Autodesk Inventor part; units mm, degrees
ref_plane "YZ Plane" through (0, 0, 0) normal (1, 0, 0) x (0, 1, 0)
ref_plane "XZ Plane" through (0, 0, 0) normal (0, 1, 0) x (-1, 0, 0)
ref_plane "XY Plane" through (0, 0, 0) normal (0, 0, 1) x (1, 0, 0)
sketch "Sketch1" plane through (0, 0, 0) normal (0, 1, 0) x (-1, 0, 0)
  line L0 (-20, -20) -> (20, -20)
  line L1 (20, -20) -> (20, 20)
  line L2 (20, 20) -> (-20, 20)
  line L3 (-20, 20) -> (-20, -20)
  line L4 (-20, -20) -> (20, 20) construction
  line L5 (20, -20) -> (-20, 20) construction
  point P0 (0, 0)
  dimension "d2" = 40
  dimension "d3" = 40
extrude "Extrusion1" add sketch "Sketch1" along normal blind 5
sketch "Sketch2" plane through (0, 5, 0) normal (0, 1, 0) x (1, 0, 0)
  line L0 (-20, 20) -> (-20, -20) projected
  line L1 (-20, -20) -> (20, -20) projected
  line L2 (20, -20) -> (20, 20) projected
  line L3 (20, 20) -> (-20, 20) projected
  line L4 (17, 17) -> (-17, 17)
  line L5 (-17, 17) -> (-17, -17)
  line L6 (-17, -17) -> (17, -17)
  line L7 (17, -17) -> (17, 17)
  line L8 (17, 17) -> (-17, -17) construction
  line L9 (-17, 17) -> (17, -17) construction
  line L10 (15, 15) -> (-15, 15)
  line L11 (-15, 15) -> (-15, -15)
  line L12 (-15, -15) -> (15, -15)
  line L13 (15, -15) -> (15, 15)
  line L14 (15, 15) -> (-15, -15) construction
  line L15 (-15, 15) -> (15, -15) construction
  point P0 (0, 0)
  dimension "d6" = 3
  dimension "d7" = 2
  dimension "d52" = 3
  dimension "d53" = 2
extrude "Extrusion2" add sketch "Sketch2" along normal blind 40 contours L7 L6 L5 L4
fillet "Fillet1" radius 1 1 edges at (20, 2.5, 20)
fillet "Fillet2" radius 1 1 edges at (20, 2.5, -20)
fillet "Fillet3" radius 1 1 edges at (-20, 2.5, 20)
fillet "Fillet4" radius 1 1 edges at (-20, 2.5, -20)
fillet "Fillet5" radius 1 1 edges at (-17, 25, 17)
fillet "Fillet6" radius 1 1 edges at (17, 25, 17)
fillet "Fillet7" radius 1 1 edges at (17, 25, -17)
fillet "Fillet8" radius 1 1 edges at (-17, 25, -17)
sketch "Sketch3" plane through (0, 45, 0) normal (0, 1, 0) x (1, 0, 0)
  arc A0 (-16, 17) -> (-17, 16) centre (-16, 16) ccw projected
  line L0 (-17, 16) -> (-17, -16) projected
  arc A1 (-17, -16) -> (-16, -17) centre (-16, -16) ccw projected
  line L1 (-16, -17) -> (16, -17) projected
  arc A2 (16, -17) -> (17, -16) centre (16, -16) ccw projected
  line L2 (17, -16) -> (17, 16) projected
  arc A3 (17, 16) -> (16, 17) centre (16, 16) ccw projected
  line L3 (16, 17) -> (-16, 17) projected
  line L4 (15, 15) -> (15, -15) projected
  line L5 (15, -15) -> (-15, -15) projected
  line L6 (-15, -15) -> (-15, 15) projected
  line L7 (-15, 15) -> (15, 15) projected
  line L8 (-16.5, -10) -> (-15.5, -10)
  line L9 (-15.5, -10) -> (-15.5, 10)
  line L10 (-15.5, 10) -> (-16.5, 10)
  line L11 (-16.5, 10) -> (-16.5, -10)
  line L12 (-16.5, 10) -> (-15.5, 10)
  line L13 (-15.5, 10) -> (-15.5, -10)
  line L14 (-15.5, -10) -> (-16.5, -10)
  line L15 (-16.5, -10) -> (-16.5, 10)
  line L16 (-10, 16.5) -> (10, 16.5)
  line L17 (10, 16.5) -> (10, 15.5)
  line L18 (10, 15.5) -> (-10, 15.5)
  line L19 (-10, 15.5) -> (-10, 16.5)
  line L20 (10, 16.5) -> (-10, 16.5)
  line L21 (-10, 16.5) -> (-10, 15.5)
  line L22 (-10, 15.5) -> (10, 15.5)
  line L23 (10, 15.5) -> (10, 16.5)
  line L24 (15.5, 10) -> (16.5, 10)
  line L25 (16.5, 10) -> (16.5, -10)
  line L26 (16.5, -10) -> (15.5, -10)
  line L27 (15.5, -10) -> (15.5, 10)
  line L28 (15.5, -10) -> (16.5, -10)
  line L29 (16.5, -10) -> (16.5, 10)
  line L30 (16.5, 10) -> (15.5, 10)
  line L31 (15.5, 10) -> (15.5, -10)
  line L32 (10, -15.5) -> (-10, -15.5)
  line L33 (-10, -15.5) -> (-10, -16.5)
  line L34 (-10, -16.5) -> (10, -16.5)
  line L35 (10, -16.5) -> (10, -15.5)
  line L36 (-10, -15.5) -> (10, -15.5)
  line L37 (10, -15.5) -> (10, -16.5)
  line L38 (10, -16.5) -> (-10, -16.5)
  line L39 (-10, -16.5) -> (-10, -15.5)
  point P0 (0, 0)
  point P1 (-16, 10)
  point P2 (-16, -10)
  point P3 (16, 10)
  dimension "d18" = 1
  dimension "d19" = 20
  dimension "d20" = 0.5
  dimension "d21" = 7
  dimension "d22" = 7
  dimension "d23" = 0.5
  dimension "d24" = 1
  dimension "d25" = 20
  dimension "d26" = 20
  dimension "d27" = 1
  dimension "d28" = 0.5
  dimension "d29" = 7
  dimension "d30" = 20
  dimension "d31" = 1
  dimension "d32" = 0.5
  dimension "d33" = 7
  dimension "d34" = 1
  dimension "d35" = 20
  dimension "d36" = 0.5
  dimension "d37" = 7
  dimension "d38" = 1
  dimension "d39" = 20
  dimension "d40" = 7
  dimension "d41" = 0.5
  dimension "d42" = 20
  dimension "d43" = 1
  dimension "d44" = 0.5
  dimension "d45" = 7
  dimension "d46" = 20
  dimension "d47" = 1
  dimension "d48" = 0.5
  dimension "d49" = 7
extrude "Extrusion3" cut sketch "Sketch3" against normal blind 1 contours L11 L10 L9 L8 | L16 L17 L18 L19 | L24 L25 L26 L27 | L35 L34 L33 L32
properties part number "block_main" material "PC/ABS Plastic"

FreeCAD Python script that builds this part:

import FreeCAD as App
import Part
import Sketcher
from FreeCAD import Vector
Q = App.Units.Quantity


def edges_at(feature, points):
    """Names of the edges that pass closest to the given points."""
    edges = feature.Shape.Edges
    near = lambda p: min(range(len(edges)), key=lambda i: edges[i].distToShape(Part.Vertex(*p))[0])
    return sorted({f"Edge{near(p) + 1}" for p in points})

doc = App.newDocument("Part")
body = doc.addObject("PartDesign::Body", "Body")

sketch1 = doc.addObject("Sketcher::SketchObject", "Sketch")
body.addObject(sketch1)
sketch1.AttachmentSupport = (doc.XZ_Plane, [""])
sketch1.MapMode = "FlatFace"
sketch1.addGeometry([
    Part.LineSegment(Vector(20, 20, 0), Vector(20, -20, 0)),
    Part.LineSegment(Vector(20, -20, 0), Vector(-20, -20, 0)),
    Part.LineSegment(Vector(-20, -20, 0), Vector(-20, 20, 0)),
    Part.LineSegment(Vector(-20, 20, 0), Vector(20, 20, 0)),
], False)
sketch1.addConstraint([
    Sketcher.Constraint("Coincident", 0, 2, 1, 1),
    Sketcher.Constraint("Coincident", 1, 2, 2, 1),
    Sketcher.Constraint("Coincident", 2, 2, 3, 1),
    Sketcher.Constraint("Coincident", 3, 2, 0, 1),
    Sketcher.Constraint("Vertical", 0),
    Sketcher.Constraint("Horizontal", 1),
    Sketcher.Constraint("Vertical", 2),
    Sketcher.Constraint("Horizontal", 3),
    Sketcher.Constraint("Symmetric", 0, 2, 2, 2, -1, 1),
    Sketcher.Constraint("Equal", 3, 0),
    Sketcher.Constraint("DistanceX", 1, 2, 1, 1, Q("40 mm")),
])
pad1 = doc.addObject("PartDesign::Pad", "Pad")
body.addObject(pad1)
pad1.Profile = sketch1
pad1.Length = 5
pad1.Reversed = True

sketch2 = doc.addObject("Sketcher::SketchObject", "Sketch001")
body.addObject(sketch2)
sketch2.AttachmentSupport = (doc.XZ_Plane, [""])
sketch2.MapMode = "FlatFace"
sketch2.AttachmentOffset = App.Placement(Vector(0, 0, -5), App.Rotation())
sketch2.addGeometry([
    Part.LineSegment(Vector(17, 17, 0), Vector(17, -17, 0)),
    Part.LineSegment(Vector(17, -17, 0), Vector(-17, -17, 0)),
    Part.LineSegment(Vector(-17, -17, 0), Vector(-17, 17, 0)),
    Part.LineSegment(Vector(-17, 17, 0), Vector(17, 17, 0)),
    Part.LineSegment(Vector(-15, -15, 0), Vector(15, -15, 0)),
    Part.LineSegment(Vector(15, -15, 0), Vector(15, 15, 0)),
    Part.LineSegment(Vector(15, 15, 0), Vector(-15, 15, 0)),
    Part.LineSegment(Vector(-15, 15, 0), Vector(-15, -15, 0)),
], False)
sketch2.addConstraint([
    Sketcher.Constraint("Coincident", 0, 2, 1, 1),
    Sketcher.Constraint("Coincident", 1, 2, 2, 1),
    Sketcher.Constraint("Coincident", 2, 2, 3, 1),
    Sketcher.Constraint("Coincident", 3, 2, 0, 1),
    Sketcher.Constraint("Coincident", 4, 2, 5, 1),
    Sketcher.Constraint("Coincident", 5, 2, 6, 1),
    Sketcher.Constraint("Coincident", 6, 2, 7, 1),
    Sketcher.Constraint("Coincident", 7, 2, 4, 1),
    Sketcher.Constraint("Vertical", 0),
    Sketcher.Constraint("Horizontal", 1),
    Sketcher.Constraint("Vertical", 2),
    Sketcher.Constraint("Horizontal", 3),
    Sketcher.Constraint("Horizontal", 4),
    Sketcher.Constraint("Vertical", 5),
    Sketcher.Constraint("Horizontal", 6),
    Sketcher.Constraint("Vertical", 7),
    Sketcher.Constraint("Symmetric", 0, 2, 2, 2, -1, 1),
    Sketcher.Constraint("Symmetric", 4, 2, 6, 2, -1, 1),
    Sketcher.Constraint("Equal", 3, 0),
    Sketcher.Constraint("Equal", 6, 5),
    Sketcher.Constraint("DistanceX", 4, 2, 0, 2, Q("2 mm")),
    Sketcher.Constraint("DistanceX", 1, 2, 1, 1, Q("34 mm")),
])
pad2 = doc.addObject("PartDesign::Pad", "Pad001")
body.addObject(pad2)
pad2.Profile = sketch2
pad2.Length = 40
pad2.Reversed = True
doc.recompute()

fillet = doc.addObject("PartDesign::Fillet", "Fillet")
body.addObject(fillet)
fillet.Base = (pad2, edges_at(pad2, [(20, 2.5, 20)]))
fillet.Radius = 1
doc.recompute()

fillet2 = doc.addObject("PartDesign::Fillet", "Fillet001")
body.addObject(fillet2)
fillet2.Base = (fillet, edges_at(fillet, [(20, 2.5, -20)]))
fillet2.Radius = 1
doc.recompute()

fillet3 = doc.addObject("PartDesign::Fillet", "Fillet002")
body.addObject(fillet3)
fillet3.Base = (fillet2, edges_at(fillet2, [(-20, 2.5, 20)]))
fillet3.Radius = 1
doc.recompute()

fillet4 = doc.addObject("PartDesign::Fillet", "Fillet003")
body.addObject(fillet4)
fillet4.Base = (fillet3, edges_at(fillet3, [(-20, 2.5, -20)]))
fillet4.Radius = 1
doc.recompute()

fillet5 = doc.addObject("PartDesign::Fillet", "Fillet004")
body.addObject(fillet5)
fillet5.Base = (fillet4, edges_at(fillet4, [(-17, 25, 17)]))
fillet5.Radius = 1
doc.recompute()

fillet6 = doc.addObject("PartDesign::Fillet", "Fillet005")
body.addObject(fillet6)
fillet6.Base = (fillet5, edges_at(fillet5, [(17, 25, 17)]))
fillet6.Radius = 1
doc.recompute()

fillet7 = doc.addObject("PartDesign::Fillet", "Fillet006")
body.addObject(fillet7)
fillet7.Base = (fillet6, edges_at(fillet6, [(17, 25, -17)]))
fillet7.Radius = 1
doc.recompute()

fillet8 = doc.addObject("PartDesign::Fillet", "Fillet007")
body.addObject(fillet8)
fillet8.Base = (fillet7, edges_at(fillet7, [(-17, 25, -17)]))
fillet8.Radius = 1

sketch3 = doc.addObject("Sketcher::SketchObject", "Sketch002")
body.addObject(sketch3)
sketch3.AttachmentSupport = (doc.XZ_Plane, [""])
sketch3.MapMode = "FlatFace"
sketch3.AttachmentOffset = App.Placement(Vector(0, 0, -45), App.Rotation())
sketch3.addGeometry([
    Part.LineSegment(Vector(-16.5, -10, 0), Vector(-16.5, 10, 0)),
    Part.LineSegment(Vector(-16.5, 10, 0), Vector(-15.5, 10, 0)),
    Part.LineSegment(Vector(-15.5, 10, 0), Vector(-15.5, -10, 0)),
    Part.LineSegment(Vector(-15.5, -10, 0), Vector(-16.5, -10, 0)),
    Part.LineSegment(Vector(10, -16.5, 0), Vector(-10, -16.5, 0)),
    Part.LineSegment(Vector(-10, -16.5, 0), Vector(-10, -15.5, 0)),
    Part.LineSegment(Vector(-10, -15.5, 0), Vector(10, -15.5, 0)),
    Part.LineSegment(Vector(10, -15.5, 0), Vector(10, -16.5, 0)),
    Part.LineSegment(Vector(16.5, -10, 0), Vector(15.5, -10, 0)),
    Part.LineSegment(Vector(15.5, -10, 0), Vector(15.5, 10, 0)),
    Part.LineSegment(Vector(15.5, 10, 0), Vector(16.5, 10, 0)),
    Part.LineSegment(Vector(16.5, 10, 0), Vector(16.5, -10, 0)),
    Part.LineSegment(Vector(10, 16.5, 0), Vector(10, 15.5, 0)),
    Part.LineSegment(Vector(10, 15.5, 0), Vector(-10, 15.5, 0)),
    Part.LineSegment(Vector(-10, 15.5, 0), Vector(-10, 16.5, 0)),
    Part.LineSegment(Vector(-10, 16.5, 0), Vector(10, 16.5, 0)),
], False)
sketch3.addConstraint([
    Sketcher.Constraint("Coincident", 0, 2, 1, 1),
    Sketcher.Constraint("Coincident", 1, 2, 2, 1),
    Sketcher.Constraint("Coincident", 2, 2, 3, 1),
    Sketcher.Constraint("Coincident", 3, 2, 0, 1),
    Sketcher.Constraint("Coincident", 4, 2, 5, 1),
    Sketcher.Constraint("Coincident", 5, 2, 6, 1),
    Sketcher.Constraint("Coincident", 6, 2, 7, 1),
    Sketcher.Constraint("Coincident", 7, 2, 4, 1),
    Sketcher.Constraint("Coincident", 8, 2, 9, 1),
    Sketcher.Constraint("Coincident", 9, 2, 10, 1),
    Sketcher.Constraint("Coincident", 10, 2, 11, 1),
    Sketcher.Constraint("Coincident", 11, 2, 8, 1),
    Sketcher.Constraint("Coincident", 12, 2, 13, 1),
    Sketcher.Constraint("Coincident", 13, 2, 14, 1),
    Sketcher.Constraint("Coincident", 14, 2, 15, 1),
    Sketcher.Constraint("Coincident", 15, 2, 12, 1),
    Sketcher.Constraint("Vertical", 0),
    Sketcher.Constraint("Horizontal", 1),
    Sketcher.Constraint("Vertical", 2),
    Sketcher.Constraint("Horizontal", 3),
    Sketcher.Constraint("Horizontal", 4),
    Sketcher.Constraint("Vertical", 5),
    Sketcher.Constraint("Horizontal", 6),
    Sketcher.Constraint("Vertical", 7),
    Sketcher.Constraint("Horizontal", 8),
    Sketcher.Constraint("Vertical", 9),
    Sketcher.Constraint("Horizontal", 10),
    Sketcher.Constraint("Vertical", 11),
    Sketcher.Constraint("Vertical", 12),
    Sketcher.Constraint("Horizontal", 13),
    Sketcher.Constraint("Vertical", 14),
    Sketcher.Constraint("Horizontal", 15),
    Sketcher.Constraint("Symmetric", 1, 2, 8, 2, -1, 1),
    Sketcher.Constraint("Symmetric", 3, 2, 10, 2, -1, 1),
    Sketcher.Constraint("Symmetric", 5, 2, 12, 2, -1, 1),
    Sketcher.Constraint("Symmetric", 7, 2, 14, 2, -1, 1),
    Sketcher.Constraint("Horizontal", 3, 2, 8, 2),
    Sketcher.Constraint("Vertical", 7, 2, 12, 2),
    Sketcher.Constraint("Equal", 15, 0),
    Sketcher.Constraint("Equal", 10, 5),
    Sketcher.Constraint("DistanceX", 1, 1, 1, 2, Q("1 mm")),
    Sketcher.Constraint("DistanceX", 4, 2, 4, 1, Q("20 mm")),
    Sketcher.Constraint("DistanceX", 2, 2, 8, 2, Q("31 mm")),
    Sketcher.Constraint("DistanceY", 4, 2, -1, 1, Q("16.5 mm")),
])
pocket1 = doc.addObject("PartDesign::Pocket", "Pocket")
body.addObject(pocket1)
pocket1.Profile = sketch3
pocket1.Length = 1
pocket1.Reversed = True

doc.recompute()
